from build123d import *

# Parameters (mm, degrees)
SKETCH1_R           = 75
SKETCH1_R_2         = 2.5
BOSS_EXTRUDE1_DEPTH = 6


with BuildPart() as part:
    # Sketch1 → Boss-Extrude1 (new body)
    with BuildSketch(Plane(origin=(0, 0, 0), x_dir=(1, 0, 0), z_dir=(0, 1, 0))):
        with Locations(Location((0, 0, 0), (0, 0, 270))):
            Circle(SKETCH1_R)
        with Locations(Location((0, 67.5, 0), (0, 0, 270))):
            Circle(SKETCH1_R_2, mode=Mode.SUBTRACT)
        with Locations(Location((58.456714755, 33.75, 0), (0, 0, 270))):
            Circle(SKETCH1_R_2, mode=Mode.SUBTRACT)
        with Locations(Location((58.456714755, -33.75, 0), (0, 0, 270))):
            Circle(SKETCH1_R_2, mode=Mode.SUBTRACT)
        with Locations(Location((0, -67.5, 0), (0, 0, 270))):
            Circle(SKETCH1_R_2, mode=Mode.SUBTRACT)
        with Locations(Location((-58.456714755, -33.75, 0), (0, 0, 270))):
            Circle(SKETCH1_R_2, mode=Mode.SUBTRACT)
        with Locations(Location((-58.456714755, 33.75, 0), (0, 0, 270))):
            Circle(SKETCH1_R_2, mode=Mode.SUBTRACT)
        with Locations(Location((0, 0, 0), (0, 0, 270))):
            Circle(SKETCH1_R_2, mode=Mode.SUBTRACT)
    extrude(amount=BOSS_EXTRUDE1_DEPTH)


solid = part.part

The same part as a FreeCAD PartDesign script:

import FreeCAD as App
import Part
import Sketcher
from FreeCAD import Vector

doc = App.newDocument("Part")
params = doc.addObject("Spreadsheet::Sheet", "Params")
for row, (alias, value) in enumerate([
    ("sketch1_diameter", "150 mm"),
    ("sketch1_diameter2", "5 mm"),
    ("pad1_length", "6 mm"),
], start=1):
    params.set(f"A{row}", alias)
    params.set(f"B{row}", "=" + value)
    params.setAlias(f"B{row}", alias)

body = doc.addObject("PartDesign::Body", "Body")

# Sketch on XZ plane
sketch1 = doc.addObject("Sketcher::SketchObject", "Sketch")
body.addObject(sketch1)
sketch1.AttachmentSupport = (doc.XZ_Plane, [""])
sketch1.MapMode = "FlatFace"
sketch1.addGeometry([
    Part.Circle(Vector(0, 0, 0), Vector(0, 0, 1), 75),  # 0
    Part.Circle(Vector(-58.5, -33.8, 0), Vector(0, 0, 1), 2.5),  # 1
    Part.Circle(Vector(0, -67.5, 0), Vector(0, 0, 1), 2.5),  # 2
    Part.Circle(Vector(-58.5, 33.8, 0), Vector(0, 0, 1), 2.5),  # 3
    Part.Circle(Vector(58.5, -33.8, 0), Vector(0, 0, 1), 2.5),  # 4
    Part.Circle(Vector(0, 0, 0), Vector(0, 0, 1), 2.5),  # 5
    Part.Circle(Vector(0, 67.5, 0), Vector(0, 0, 1), 2.5),  # 6
    Part.Circle(Vector(58.5, 33.8, 0), Vector(0, 0, 1), 2.5),  # 7
], False)
sketch1.addConstraint([
    Sketcher.Constraint("Coincident", 0, 3, -1, 1),
    Sketcher.Constraint("Coincident", 5, 3, -1, 1),
    Sketcher.Constraint("Equal", 1, 2),
    Sketcher.Constraint("Equal", 2, 3),
    Sketcher.Constraint("Equal", 3, 4),
    Sketcher.Constraint("Equal", 4, 5),
    Sketcher.Constraint("Equal", 5, 6),
    Sketcher.Constraint("Equal", 6, 7),
    Sketcher.Constraint("Symmetric", 3, 3, 4, 3, -1, 1),
    Sketcher.Constraint("Symmetric", 2, 3, 6, 3, -1, 1),
    Sketcher.Constraint("Symmetric", 1, 3, 7, 3, -1, 1),
    Sketcher.Constraint("Symmetric", 1, 3, 4, 3, -2),
    Sketcher.Constraint("PointOnObject", 2, 3, -2),
    Sketcher.Constraint("Diameter", 0, 150.0),
    Sketcher.Constraint("Diameter", 1, 5.0),
    Sketcher.Constraint("DistanceY", 2, 3, -1, 1, 67.5),
    Sketcher.Constraint("DistanceY", 1, 3, 3, 3, 67.5),
    Sketcher.Constraint("DistanceX", 1, 3, 4, 3, 116.91343),
])
sketch1.setExpression("Constraints[13]", "Params.sketch1_diameter")
sketch1.setExpression("Constraints[14]", "Params.sketch1_diameter2")
pad1 = doc.addObject("PartDesign::Pad", "Pad")
body.addObject(pad1)
pad1.Profile = sketch1
pad1.setExpression("Length", "Params.pad1_length")
pad1.Reversed = True

doc.recompute()
